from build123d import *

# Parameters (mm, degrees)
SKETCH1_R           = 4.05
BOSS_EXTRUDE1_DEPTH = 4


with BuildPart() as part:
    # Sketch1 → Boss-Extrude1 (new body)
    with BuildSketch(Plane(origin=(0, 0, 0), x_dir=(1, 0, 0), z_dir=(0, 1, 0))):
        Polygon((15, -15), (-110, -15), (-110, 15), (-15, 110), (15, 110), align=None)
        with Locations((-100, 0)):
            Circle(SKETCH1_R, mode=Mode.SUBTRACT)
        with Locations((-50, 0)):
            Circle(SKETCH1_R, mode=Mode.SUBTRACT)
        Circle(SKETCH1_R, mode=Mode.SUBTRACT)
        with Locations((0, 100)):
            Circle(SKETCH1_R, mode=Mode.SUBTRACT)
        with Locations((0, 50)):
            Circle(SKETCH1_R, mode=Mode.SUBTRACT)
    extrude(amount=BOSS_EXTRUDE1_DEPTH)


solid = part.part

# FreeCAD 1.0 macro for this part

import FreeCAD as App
import Part
import Sketcher
from FreeCAD import Vector
Q = App.Units.Quantity


def add_polygon(sketch, points):
    """Adds a closed chain of lines whose ends are joined by coincident constraints."""
    first, n = sketch.GeometryCount, len(points)
    for a, b in zip(points, points[1:] + points[:1]):
        sketch.addGeometry(Part.LineSegment(App.Vector(*a, 0), App.Vector(*b, 0)), False)
    for i in range(n):
        sketch.addConstraint(Sketcher.Constraint("Coincident", first + i, 2, first + (i + 1) % n, 1))

doc = App.newDocument("Part")
params = doc.addObject("Spreadsheet::Sheet", "Params")
for row, (alias, value) in enumerate([
    ("sketch1_diameter", "8.1 mm"),
    ("sketch1_width", "125 mm"),
    ("sketch1_width2", "30 mm"),
    ("pad1_length", "4 mm"),
], start=1):
    params.set(f"A{row}", alias)
    params.set(f"B{row}", "=" + value)
    params.setAlias(f"B{row}", alias)

body = doc.addObject("PartDesign::Body", "Body")

sketch1 = body.newObject("Sketcher::SketchObject", "Sketch")
sketch1.AttachmentSupport = (doc.getObject("XZ_Plane"), [""])
sketch1.MapMode = "FlatFace"
add_polygon(sketch1, [(-110, 15), (15, 15), (15, -110), (-15, -110), (-110, -15)])
sketch1.addGeometry(Part.Circle(Vector(0, 0, 0), Vector(0, 0, 1), 4.05), False)
sketch1.addGeometry(Part.Circle(Vector(-50, 0, 0), Vector(0, 0, 1), 4.05), False)
sketch1.addGeometry(Part.Circle(Vector(-100, 0, 0), Vector(0, 0, 1), 4.05), False)
sketch1.addGeometry(Part.Circle(Vector(0, -50, 0), Vector(0, 0, 1), 4.05), False)
sketch1.addGeometry(Part.Circle(Vector(0, -100, 0), Vector(0, 0, 1), 4.05), False)
sketch1.addConstraint([
    Sketcher.Constraint("Horizontal", 0),
    Sketcher.Constraint("Vertical", 1),
    Sketcher.Constraint("Horizontal", 2),
    Sketcher.Constraint("Vertical", 4),
    Sketcher.Constraint("Coincident", 5, 3, -1, 1),
    Sketcher.Constraint("Equal", 5, 6),
    Sketcher.Constraint("Equal", 6, 7),
    Sketcher.Constraint("Equal", 7, 8),
    Sketcher.Constraint("Equal", 8, 9),
    Sketcher.Constraint("PointOnObject", 6, 3, -1),
    Sketcher.Constraint("PointOnObject", 7, 3, -1),
    Sketcher.Constraint("PointOnObject", 8, 3, -2),
    Sketcher.Constraint("PointOnObject", 9, 3, -2),
    Sketcher.Constraint("Equal", 0, 1),
    Sketcher.Constraint("Equal", 2, 4),
    Sketcher.Constraint("Diameter", 5, Q("8.1 mm")),
    Sketcher.Constraint("DistanceX", 0, 1, 0, 2, Q("125 mm")),
    Sketcher.Constraint("DistanceX", 2, 2, 2, 1, Q("30 mm")),
    Sketcher.Constraint("DistanceX", 6, 3, -1, 1, Q("50 mm")),
    Sketcher.Constraint("DistanceX", 7, 3, -1, 1, Q("100 mm")),
    Sketcher.Constraint("DistanceY", 8, 3, -1, 1, Q("50 mm")),
    Sketcher.Constraint("DistanceY", 9, 3, -1, 1, Q("100 mm")),
    Sketcher.Constraint("DistanceX", -1, 1, 0, 2, Q("15 mm")),
    Sketcher.Constraint("DistanceY", -1, 1, 0, 2, Q("15 mm")),
])
sketch1.setExpression("Constraints[20]", "Params.sketch1_diameter")
sketch1.setExpression("Constraints[21]", "Params.sketch1_width")
sketch1.setExpression("Constraints[22]", "Params.sketch1_width2")
pad1 = body.newObject("PartDesign::Pad", "Pad")
pad1.Profile = sketch1
pad1.setExpression("Length", "Params.pad1_length")
pad1.Reversed = True

doc.recompute()
